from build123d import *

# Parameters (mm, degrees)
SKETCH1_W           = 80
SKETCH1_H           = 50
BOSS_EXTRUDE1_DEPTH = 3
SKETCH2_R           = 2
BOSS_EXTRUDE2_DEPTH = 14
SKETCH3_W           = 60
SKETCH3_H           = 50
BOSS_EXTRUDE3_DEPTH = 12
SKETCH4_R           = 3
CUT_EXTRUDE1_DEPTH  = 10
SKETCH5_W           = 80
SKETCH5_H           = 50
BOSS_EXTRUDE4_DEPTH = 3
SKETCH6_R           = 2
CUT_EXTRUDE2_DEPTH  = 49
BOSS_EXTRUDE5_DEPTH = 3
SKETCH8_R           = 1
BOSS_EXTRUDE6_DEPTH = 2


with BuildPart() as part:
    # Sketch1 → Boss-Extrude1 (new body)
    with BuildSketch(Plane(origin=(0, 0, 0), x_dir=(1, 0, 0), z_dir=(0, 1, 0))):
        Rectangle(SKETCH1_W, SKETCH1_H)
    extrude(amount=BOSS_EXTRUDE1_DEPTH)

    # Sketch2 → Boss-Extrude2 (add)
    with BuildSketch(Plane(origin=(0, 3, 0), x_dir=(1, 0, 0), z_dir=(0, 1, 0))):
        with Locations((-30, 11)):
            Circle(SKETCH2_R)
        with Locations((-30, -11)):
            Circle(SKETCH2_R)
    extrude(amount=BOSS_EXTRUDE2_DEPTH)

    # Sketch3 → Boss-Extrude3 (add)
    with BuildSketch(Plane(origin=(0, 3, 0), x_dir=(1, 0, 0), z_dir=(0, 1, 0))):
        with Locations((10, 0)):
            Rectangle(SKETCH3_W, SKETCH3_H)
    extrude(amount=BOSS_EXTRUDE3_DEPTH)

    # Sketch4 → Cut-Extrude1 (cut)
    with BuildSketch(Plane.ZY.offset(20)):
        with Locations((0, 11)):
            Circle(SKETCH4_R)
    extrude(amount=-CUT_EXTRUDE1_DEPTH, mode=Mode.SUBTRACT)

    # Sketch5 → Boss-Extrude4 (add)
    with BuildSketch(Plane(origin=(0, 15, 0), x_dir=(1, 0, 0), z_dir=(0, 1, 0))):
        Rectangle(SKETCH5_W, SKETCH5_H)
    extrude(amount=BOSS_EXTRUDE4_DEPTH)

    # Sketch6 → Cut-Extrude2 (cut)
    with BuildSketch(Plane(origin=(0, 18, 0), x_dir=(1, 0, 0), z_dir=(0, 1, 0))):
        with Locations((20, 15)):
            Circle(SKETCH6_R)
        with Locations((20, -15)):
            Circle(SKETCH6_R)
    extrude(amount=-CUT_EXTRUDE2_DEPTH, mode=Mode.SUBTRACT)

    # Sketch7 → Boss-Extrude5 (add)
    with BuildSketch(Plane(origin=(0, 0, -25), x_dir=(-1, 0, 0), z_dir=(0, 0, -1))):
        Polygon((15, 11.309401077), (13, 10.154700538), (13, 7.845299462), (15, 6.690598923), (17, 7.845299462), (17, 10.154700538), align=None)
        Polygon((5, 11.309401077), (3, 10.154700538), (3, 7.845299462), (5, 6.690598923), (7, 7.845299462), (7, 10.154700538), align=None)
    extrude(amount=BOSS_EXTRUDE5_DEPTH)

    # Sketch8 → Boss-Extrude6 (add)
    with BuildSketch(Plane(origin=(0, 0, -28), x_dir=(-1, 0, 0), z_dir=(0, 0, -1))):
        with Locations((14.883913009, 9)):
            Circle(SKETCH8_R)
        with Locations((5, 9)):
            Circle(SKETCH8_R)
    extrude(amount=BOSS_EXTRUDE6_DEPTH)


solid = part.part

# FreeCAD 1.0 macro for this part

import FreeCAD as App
import Part
import Sketcher

V = App.Vector
Q = App.Units.Quantity

doc = App.newDocument("Part")
body = doc.addObject("PartDesign::Body", "Body")

sketch1 = body.newObject("Sketcher::SketchObject", "Sketch")
sketch1.AttachmentSupport = (doc.getObject("XZ_Plane"), [""])
sketch1.MapMode = "FlatFace"
sketch1.addGeometry(Part.LineSegment(V(-40, -25, 0), V(-40, 25, 0)), False)
sketch1.addGeometry(Part.LineSegment(V(-40, 25, 0), V(40, 25, 0)), False)
sketch1.addGeometry(Part.LineSegment(V(40, 25, 0), V(40, -25, 0)), False)
sketch1.addGeometry(Part.LineSegment(V(40, -25, 0), V(-40, -25, 0)), False)
sketch1.addConstraint(Sketcher.Constraint("Coincident", 0, 2, 1, 1))
sketch1.addConstraint(Sketcher.Constraint("Coincident", 1, 2, 2, 1))
sketch1.addConstraint(Sketcher.Constraint("Coincident", 2, 2, 3, 1))
sketch1.addConstraint(Sketcher.Constraint("Coincident", 3, 2, 0, 1))
sketch1.addConstraint(Sketcher.Constraint("Vertical", 0))
sketch1.addConstraint(Sketcher.Constraint("Horizontal", 1))
sketch1.addConstraint(Sketcher.Constraint("Vertical", 2))
sketch1.addConstraint(Sketcher.Constraint("Horizontal", 3))
sketch1.addConstraint(Sketcher.Constraint("Symmetric", 0, 2, 2, 2, -1, 1))
sketch1.addConstraint(Sketcher.Constraint("DistanceX", 1, 1, 1, 2, Q("80 mm")))
sketch1.addConstraint(Sketcher.Constraint("DistanceY", 0, 1, 0, 2, Q("50 mm")))
pad1 = body.newObject("PartDesign::Pad", "Pad")
pad1.Profile = sketch1
pad1.Length = 3
pad1.Reversed = True

sketch2 = body.newObject("Sketcher::SketchObject", "Sketch001")
sketch2.AttachmentSupport = (doc.getObject("XZ_Plane"), [""])
sketch2.MapMode = "FlatFace"
sketch2.AttachmentOffset = App.Placement(V(0, 0, -3), App.Rotation())
sketch2.addGeometry(Part.Circle(V(-30, -11, 0), V(0, 0, 1), 2), False)
sketch2.addGeometry(Part.Circle(V(-30, 11, 0), V(0, 0, 1), 2), False)
sketch2.addConstraint(Sketcher.Constraint("Equal", 0, 1))
sketch2.addConstraint(Sketcher.Constraint("Symmetric", 0, 3, 1, 3, -1))
sketch2.addConstraint(Sketcher.Constraint("Diameter", 0, Q("4 mm")))
sketch2.addConstraint(Sketcher.Constraint("DistanceX", 0, 3, -1, 1, Q("30 mm")))
sketch2.addConstraint(Sketcher.Constraint("DistanceY", 0, 3, -1, 1, Q("11 mm")))
pad2 = body.newObject("PartDesign::Pad", "Pad001")
pad2.Profile = sketch2
pad2.Length = 14
pad2.Reversed = True

sketch3 = body.newObject("Sketcher::SketchObject", "Sketch002")
sketch3.AttachmentSupport = (doc.getObject("XZ_Plane"), [""])
sketch3.MapMode = "FlatFace"
sketch3.AttachmentOffset = App.Placement(V(0, 0, -3), App.Rotation())
sketch3.addGeometry(Part.LineSegment(V(-20, -25, 0), V(-20, 25, 0)), False)
sketch3.addGeometry(Part.LineSegment(V(-20, 25, 0), V(40, 25, 0)), False)
sketch3.addGeometry(Part.LineSegment(V(40, 25, 0), V(40, -25, 0)), False)
sketch3.addGeometry(Part.LineSegment(V(40, -25, 0), V(-20, -25, 0)), False)
sketch3.addConstraint(Sketcher.Constraint("Coincident", 0, 2, 1, 1))
sketch3.addConstraint(Sketcher.Constraint("Coincident", 1, 2, 2, 1))
sketch3.addConstraint(Sketcher.Constraint("Coincident", 2, 2, 3, 1))
sketch3.addConstraint(Sketcher.Constraint("Coincident", 3, 2, 0, 1))
sketch3.addConstraint(Sketcher.Constraint("Vertical", 0))
sketch3.addConstraint(Sketcher.Constraint("Horizontal", 1))
sketch3.addConstraint(Sketcher.Constraint("Vertical", 2))
sketch3.addConstraint(Sketcher.Constraint("Horizontal", 3))
sketch3.addConstraint(Sketcher.Constraint("DistanceX", 1, 1, 1, 2, Q("60 mm")))
sketch3.addConstraint(Sketcher.Constraint("DistanceY", 0, 1, 0, 2, Q("50 mm")))
sketch3.addConstraint(Sketcher.Constraint("DistanceX", 0, 2, -1, 1, Q("20 mm")))
sketch3.addConstraint(Sketcher.Constraint("DistanceY", -1, 1, 0, 2, Q("25 mm")))
pad3 = body.newObject("PartDesign::Pad", "Pad002")
pad3.Profile = sketch3
pad3.Length = 12
pad3.Reversed = True

sketch4 = body.newObject("Sketcher::SketchObject", "Sketch003")
sketch4.AttachmentSupport = (doc.getObject("YZ_Plane"), [""])
sketch4.MapMode = "FlatFace"
sketch4.AttachmentOffset = App.Placement(V(0, 0, -20), App.Rotation())
sketch4.addGeometry(Part.Circle(V(11, 0, 0), V(0, 0, 1), 3), False)
sketch4.addConstraint(Sketcher.Constraint("PointOnObject", 0, 3, -1))
sketch4.addConstraint(Sketcher.Constraint("Diameter", 0, Q("6 mm")))
sketch4.addConstraint(Sketcher.Constraint("DistanceX", -1, 1, 0, 3, Q("11 mm")))
pocket1 = body.newObject("PartDesign::Pocket", "Pocket")
pocket1.Profile = sketch4
pocket1.Length = 10
pocket1.Reversed = True

sketch5 = body.newObject("Sketcher::SketchObject", "Sketch004")
sketch5.AttachmentSupport = (doc.getObject("XZ_Plane"), [""])
sketch5.MapMode = "FlatFace"
sketch5.AttachmentOffset = App.Placement(V(0, 0, -15), App.Rotation())
sketch5.addGeometry(Part.LineSegment(V(-40, -25, 0), V(-40, 25, 0)), False)
sketch5.addGeometry(Part.LineSegment(V(-40, 25, 0), V(40, 25, 0)), False)
sketch5.addGeometry(Part.LineSegment(V(40, 25, 0), V(40, -25, 0)), False)
sketch5.addGeometry(Part.LineSegment(V(40, -25, 0), V(-40, -25, 0)), False)
sketch5.addConstraint(Sketcher.Constraint("Coincident", 0, 2, 1, 1))
sketch5.addConstraint(Sketcher.Constraint("Coincident", 1, 2, 2, 1))
sketch5.addConstraint(Sketcher.Constraint("Coincident", 2, 2, 3, 1))
sketch5.addConstraint(Sketcher.Constraint("Coincident", 3, 2, 0, 1))
sketch5.addConstraint(Sketcher.Constraint("Vertical", 0))
sketch5.addConstraint(Sketcher.Constraint("Horizontal", 1))
sketch5.addConstraint(Sketcher.Constraint("Vertical", 2))
sketch5.addConstraint(Sketcher.Constraint("Horizontal", 3))
sketch5.addConstraint(Sketcher.Constraint("Symmetric", 0, 2, 2, 2, -1, 1))
sketch5.addConstraint(Sketcher.Constraint("DistanceX", 1, 1, 1, 2, Q("80 mm")))
sketch5.addConstraint(Sketcher.Constraint("DistanceY", 0, 1, 0, 2, Q("50 mm")))
pad4 = body.newObject("PartDesign::Pad", "Pad003")
pad4.Profile = sketch5
pad4.Length = 3
pad4.Reversed = True

sketch6 = body.newObject("Sketcher::SketchObject", "Sketch005")
sketch6.AttachmentSupport = (doc.getObject("XZ_Plane"), [""])
sketch6.MapMode = "FlatFace"
sketch6.AttachmentOffset = App.Placement(V(0, 0, -18), App.Rotation())
sketch6.addGeometry(Part.Circle(V(20, -15, 0), V(0, 0, 1), 2), False)
sketch6.addGeometry(Part.Circle(V(20, 15, 0), V(0, 0, 1), 2), False)
sketch6.addConstraint(Sketcher.Constraint("Equal", 0, 1))
sketch6.addConstraint(Sketcher.Constraint("Symmetric", 0, 3, 1, 3, -1))
sketch6.addConstraint(Sketcher.Constraint("Diameter", 0, Q("4 mm")))
sketch6.addConstraint(Sketcher.Constraint("DistanceX", -1, 1, 0, 3, Q("20 mm")))
sketch6.addConstraint(Sketcher.Constraint("DistanceY", 0, 3, -1, 1, Q("15 mm")))
pocket2 = body.newObject("PartDesign::Pocket", "Pocket001")
pocket2.Profile = sketch6
pocket2.Length = 49
pocket2.Reversed = True

sketch7 = body.newObject("Sketcher::SketchObject", "Sketch006")
sketch7.AttachmentSupport = (doc.getObject("XY_Plane"), [""])
sketch7.MapMode = "FlatFace"
sketch7.AttachmentOffset = App.Placement(V(0, 0, -25), App.Rotation())
sketch7.addGeometry(Part.LineSegment(V(-15, 11.309401, 0), V(-13, 10.154701, 0)), False)
sketch7.addGeometry(Part.LineSegment(V(-13, 10.154701, 0), V(-13, 7.845299, 0)), False)
sketch7.addGeometry(Part.LineSegment(V(-13, 7.845299, 0), V(-15, 6.690599, 0)), False)
sketch7.addGeometry(Part.LineSegment(V(-15, 6.690599, 0), V(-17, 7.845299, 0)), False)
sketch7.addGeometry(Part.LineSegment(V(-17, 7.845299, 0), V(-17, 10.154701, 0)), False)
sketch7.addGeometry(Part.LineSegment(V(-17, 10.154701, 0), V(-15, 11.309401, 0)), False)
sketch7.addGeometry(Part.LineSegment(V(-5, 11.309401, 0), V(-3, 10.154701, 0)), False)
sketch7.addGeometry(Part.LineSegment(V(-3, 10.154701, 0), V(-3, 7.845299, 0)), False)
sketch7.addGeometry(Part.LineSegment(V(-3, 7.845299, 0), V(-5, 6.690599, 0)), False)
sketch7.addGeometry(Part.LineSegment(V(-5, 6.690599, 0), V(-7, 7.845299, 0)), False)
sketch7.addGeometry(Part.LineSegment(V(-7, 7.845299, 0), V(-7, 10.154701, 0)), False)
sketch7.addGeometry(Part.LineSegment(V(-7, 10.154701, 0), V(-5, 11.309401, 0)), False)
sketch7.addConstraint(Sketcher.Constraint("Coincident", 0, 2, 1, 1))
sketch7.addConstraint(Sketcher.Constraint("Coincident", 1, 2, 2, 1))
sketch7.addConstraint(Sketcher.Constraint("Coincident", 2, 2, 3, 1))
sketch7.addConstraint(Sketcher.Constraint("Coincident", 3, 2, 4, 1))
sketch7.addConstraint(Sketcher.Constraint("Coincident", 4, 2, 5, 1))
sketch7.addConstraint(Sketcher.Constraint("Coincident", 5, 2, 0, 1))
sketch7.addConstraint(Sketcher.Constraint("Coincident", 6, 2, 7, 1))
sketch7.addConstraint(Sketcher.Constraint("Coincident", 7, 2, 8, 1))
sketch7.addConstraint(Sketcher.Constraint("Coincident", 8, 2, 9, 1))
sketch7.addConstraint(Sketcher.Constraint("Coincident", 9, 2, 10, 1))
sketch7.addConstraint(Sketcher.Constraint("Coincident", 10, 2, 11, 1))
sketch7.addConstraint(Sketcher.Constraint("Coincident", 11, 2, 6, 1))
sketch7.addConstraint(Sketcher.Constraint("Vertical", 1))
sketch7.addConstraint(Sketcher.Constraint("Vertical", 4))
sketch7.addConstraint(Sketcher.Constraint("Vertical", 7))
sketch7.addConstraint(Sketcher.Constraint("Vertical", 10))
sketch7.addConstraint(Sketcher.Constraint("Parallel", 0, 3))
sketch7.addConstraint(Sketcher.Constraint("Parallel", 2, 5))
sketch7.addConstraint(Sketcher.Constraint("Parallel", 3, 6))
sketch7.addConstraint(Sketcher.Constraint("Parallel", 5, 8))
sketch7.addConstraint(Sketcher.Constraint("Parallel", 6, 9))
sketch7.addConstraint(Sketcher.Constraint("Parallel", 8, 11))
sketch7.addConstraint(Sketcher.Constraint("Horizontal", 1, 2, 3, 2))
sketch7.addConstraint(Sketcher.Constraint("Horizontal", 0, 2, 4, 2))
sketch7.addConstraint(Sketcher.Constraint("Horizontal", 4, 2, 6, 2))
sketch7.addConstraint(Sketcher.Constraint("Horizontal", 3, 2, 7, 2))
sketch7.addConstraint(Sketcher.Constraint("Horizontal", 2, 2, 8, 2))
sketch7.addConstraint(Sketcher.Constraint("Horizontal", 7, 2, 9, 2))
sketch7.addConstraint(Sketcher.Constraint("Horizontal", 6, 2, 10, 2))
sketch7.addConstraint(Sketcher.Constraint("Vertical", 2, 2, 5, 2))
sketch7.addConstraint(Sketcher.Constraint("Angle", 0, Q("-30 deg")))
sketch7.addConstraint(Sketcher.Constraint("DistanceX", 0, 2, -1, 1, Q("13 mm")))
sketch7.addConstraint(Sketcher.Constraint("DistanceX", 2, 2, -1, 1, Q("15 mm")))
sketch7.addConstraint(Sketcher.Constraint("DistanceX", 6, 2, -1, 1, Q("3 mm")))
sketch7.addConstraint(Sketcher.Constraint("DistanceY", 1, 2, 1, 1, Q("2.309401 mm")))
sketch7.addConstraint(Sketcher.Constraint("DistanceY", -1, 1, 0, 2, Q("10.154701 mm")))
pad5 = body.newObject("PartDesign::Pad", "Pad004")
pad5.Profile = sketch7
pad5.Length = 3
pad5.Reversed = True

sketch8 = body.newObject("Sketcher::SketchObject", "Sketch007")
sketch8.AttachmentSupport = (doc.getObject("XY_Plane"), [""])
sketch8.MapMode = "FlatFace"
sketch8.AttachmentOffset = App.Placement(V(0, 0, -28), App.Rotation())
sketch8.addGeometry(Part.Circle(V(-14.883913, 9, 0), V(0, 0, 1), 1), False)
sketch8.addGeometry(Part.Circle(V(-5, 9, 0), V(0, 0, 1), 1), False)
sketch8.addConstraint(Sketcher.Constraint("Equal", 0, 1))
sketch8.addConstraint(Sketcher.Constraint("Horizontal", 0, 3, 1, 3))
sketch8.addConstraint(Sketcher.Constraint("Diameter", 0, Q("2 mm")))
sketch8.addConstraint(Sketcher.Constraint("DistanceY", -1, 1, 0, 3, Q("9 mm")))
sketch8.addConstraint(Sketcher.Constraint("DistanceX", 1, 3, -1, 1, Q("5 mm")))
sketch8.addConstraint(Sketcher.Constraint("DistanceX", 0, 3, -1, 1, Q("14.883913 mm")))
pad6 = body.newObject("PartDesign::Pad", "Pad005")
pad6.Profile = sketch8
pad6.Length = 2
pad6.Reversed = True

doc.recompute()
